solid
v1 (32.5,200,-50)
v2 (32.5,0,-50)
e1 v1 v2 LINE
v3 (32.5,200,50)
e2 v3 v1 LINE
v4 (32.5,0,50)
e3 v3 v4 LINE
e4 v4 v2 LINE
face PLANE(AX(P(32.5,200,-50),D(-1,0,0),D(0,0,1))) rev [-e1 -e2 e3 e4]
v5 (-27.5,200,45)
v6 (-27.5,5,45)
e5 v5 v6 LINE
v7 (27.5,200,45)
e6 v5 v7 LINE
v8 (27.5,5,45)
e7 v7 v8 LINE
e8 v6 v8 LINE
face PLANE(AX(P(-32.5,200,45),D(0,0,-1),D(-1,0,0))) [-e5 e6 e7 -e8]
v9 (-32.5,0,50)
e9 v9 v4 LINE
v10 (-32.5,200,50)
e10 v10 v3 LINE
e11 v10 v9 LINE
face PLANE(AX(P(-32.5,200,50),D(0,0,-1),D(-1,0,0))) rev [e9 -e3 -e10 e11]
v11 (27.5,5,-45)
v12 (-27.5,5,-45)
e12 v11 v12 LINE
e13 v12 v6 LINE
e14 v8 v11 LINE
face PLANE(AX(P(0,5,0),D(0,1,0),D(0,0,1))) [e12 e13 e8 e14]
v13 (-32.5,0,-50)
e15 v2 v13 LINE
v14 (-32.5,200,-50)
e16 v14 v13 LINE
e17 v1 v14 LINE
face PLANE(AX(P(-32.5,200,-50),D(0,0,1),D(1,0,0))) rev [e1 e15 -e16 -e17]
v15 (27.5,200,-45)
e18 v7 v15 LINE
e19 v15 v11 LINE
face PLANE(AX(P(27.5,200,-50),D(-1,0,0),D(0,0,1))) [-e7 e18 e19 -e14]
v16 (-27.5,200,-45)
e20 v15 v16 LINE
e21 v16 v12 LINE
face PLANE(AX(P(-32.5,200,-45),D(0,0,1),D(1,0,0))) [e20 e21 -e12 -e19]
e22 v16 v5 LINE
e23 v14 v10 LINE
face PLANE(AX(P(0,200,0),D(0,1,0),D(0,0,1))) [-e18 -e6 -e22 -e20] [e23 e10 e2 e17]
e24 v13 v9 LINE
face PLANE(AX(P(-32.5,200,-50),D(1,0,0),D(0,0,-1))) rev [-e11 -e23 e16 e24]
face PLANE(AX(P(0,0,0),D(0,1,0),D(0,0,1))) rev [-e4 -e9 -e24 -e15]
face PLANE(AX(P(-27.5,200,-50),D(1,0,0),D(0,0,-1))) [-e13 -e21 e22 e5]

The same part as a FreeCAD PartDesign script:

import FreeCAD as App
import Part
import Sketcher
from FreeCAD import Vector
Q = App.Units.Quantity


def faces_at(feature, points):
    """Names of the faces that lie closest to the given points."""
    faces = feature.Shape.Faces
    near = lambda p: min(range(len(faces)), key=lambda i: faces[i].distToShape(Part.Vertex(*p))[0])
    return sorted({f"Face{near(p) + 1}" for p in points})


def add_polygon(sketch, points):
    """Adds a closed chain of lines whose ends are joined by coincident constraints."""
    first, n = sketch.GeometryCount, len(points)
    for a, b in zip(points, points[1:] + points[:1]):
        sketch.addGeometry(Part.LineSegment(App.Vector(*a, 0), App.Vector(*b, 0)), False)
    for i in range(n):
        sketch.addConstraint(Sketcher.Constraint("Coincident", first + i, 2, first + (i + 1) % n, 1))

doc = App.newDocument("Part")
params = doc.addObject("Spreadsheet::Sheet", "Params")
for row, (alias, value) in enumerate([
    ("sketch1_width", "65 mm"),
    ("sketch1_height", "100 mm"),
    ("pad1_length", "200 mm"),
    ("thickness_wall", "5 mm"),
], start=1):
    params.set(f"A{row}", alias)
    params.set(f"B{row}", "=" + value)
    params.setAlias(f"B{row}", alias)

body = doc.addObject("PartDesign::Body", "Body")

# Sketch on XZ plane
sketch1 = body.newObject("Sketcher::SketchObject", "Sketch")
sketch1.AttachmentSupport = (doc.getObject("XZ_Plane"), [""])
sketch1.MapMode = "FlatFace"
add_polygon(sketch1, [(-32, -50), (-32, 50), (32, 50), (32, -50)])  # lines 0-3
sketch1.addConstraint([
    Sketcher.Constraint("Vertical", 0),
    Sketcher.Constraint("Horizontal", 1),
    Sketcher.Constraint("Vertical", 2),
    Sketcher.Constraint("Horizontal", 3),
    Sketcher.Constraint("Symmetric", 0, 2, 2, 2, -1, 1),
    Sketcher.Constraint("DistanceX", 1, 1, 1, 2, Q("65 mm")),
    Sketcher.Constraint("DistanceY", 0, 1, 0, 2, Q("100 mm")),
])
sketch1.setExpression("Constraints[9]", "Params.sketch1_width")
sketch1.setExpression("Constraints[10]", "Params.sketch1_height")
pad1 = body.newObject("PartDesign::Pad", "Pad")
pad1.Profile = sketch1
pad1.setExpression("Length", "Params.pad1_length")
pad1.Reversed = True
doc.recompute()

thickness = body.newObject("PartDesign::Thickness", "Thickness")
thickness.Base = (pad1, faces_at(pad1, [(0, 200, 0)]))
thickness.setExpression("Value", "Params.thickness_wall")
thickness.Reversed = True
thickness.Join = "Intersection"

doc.recompute()
